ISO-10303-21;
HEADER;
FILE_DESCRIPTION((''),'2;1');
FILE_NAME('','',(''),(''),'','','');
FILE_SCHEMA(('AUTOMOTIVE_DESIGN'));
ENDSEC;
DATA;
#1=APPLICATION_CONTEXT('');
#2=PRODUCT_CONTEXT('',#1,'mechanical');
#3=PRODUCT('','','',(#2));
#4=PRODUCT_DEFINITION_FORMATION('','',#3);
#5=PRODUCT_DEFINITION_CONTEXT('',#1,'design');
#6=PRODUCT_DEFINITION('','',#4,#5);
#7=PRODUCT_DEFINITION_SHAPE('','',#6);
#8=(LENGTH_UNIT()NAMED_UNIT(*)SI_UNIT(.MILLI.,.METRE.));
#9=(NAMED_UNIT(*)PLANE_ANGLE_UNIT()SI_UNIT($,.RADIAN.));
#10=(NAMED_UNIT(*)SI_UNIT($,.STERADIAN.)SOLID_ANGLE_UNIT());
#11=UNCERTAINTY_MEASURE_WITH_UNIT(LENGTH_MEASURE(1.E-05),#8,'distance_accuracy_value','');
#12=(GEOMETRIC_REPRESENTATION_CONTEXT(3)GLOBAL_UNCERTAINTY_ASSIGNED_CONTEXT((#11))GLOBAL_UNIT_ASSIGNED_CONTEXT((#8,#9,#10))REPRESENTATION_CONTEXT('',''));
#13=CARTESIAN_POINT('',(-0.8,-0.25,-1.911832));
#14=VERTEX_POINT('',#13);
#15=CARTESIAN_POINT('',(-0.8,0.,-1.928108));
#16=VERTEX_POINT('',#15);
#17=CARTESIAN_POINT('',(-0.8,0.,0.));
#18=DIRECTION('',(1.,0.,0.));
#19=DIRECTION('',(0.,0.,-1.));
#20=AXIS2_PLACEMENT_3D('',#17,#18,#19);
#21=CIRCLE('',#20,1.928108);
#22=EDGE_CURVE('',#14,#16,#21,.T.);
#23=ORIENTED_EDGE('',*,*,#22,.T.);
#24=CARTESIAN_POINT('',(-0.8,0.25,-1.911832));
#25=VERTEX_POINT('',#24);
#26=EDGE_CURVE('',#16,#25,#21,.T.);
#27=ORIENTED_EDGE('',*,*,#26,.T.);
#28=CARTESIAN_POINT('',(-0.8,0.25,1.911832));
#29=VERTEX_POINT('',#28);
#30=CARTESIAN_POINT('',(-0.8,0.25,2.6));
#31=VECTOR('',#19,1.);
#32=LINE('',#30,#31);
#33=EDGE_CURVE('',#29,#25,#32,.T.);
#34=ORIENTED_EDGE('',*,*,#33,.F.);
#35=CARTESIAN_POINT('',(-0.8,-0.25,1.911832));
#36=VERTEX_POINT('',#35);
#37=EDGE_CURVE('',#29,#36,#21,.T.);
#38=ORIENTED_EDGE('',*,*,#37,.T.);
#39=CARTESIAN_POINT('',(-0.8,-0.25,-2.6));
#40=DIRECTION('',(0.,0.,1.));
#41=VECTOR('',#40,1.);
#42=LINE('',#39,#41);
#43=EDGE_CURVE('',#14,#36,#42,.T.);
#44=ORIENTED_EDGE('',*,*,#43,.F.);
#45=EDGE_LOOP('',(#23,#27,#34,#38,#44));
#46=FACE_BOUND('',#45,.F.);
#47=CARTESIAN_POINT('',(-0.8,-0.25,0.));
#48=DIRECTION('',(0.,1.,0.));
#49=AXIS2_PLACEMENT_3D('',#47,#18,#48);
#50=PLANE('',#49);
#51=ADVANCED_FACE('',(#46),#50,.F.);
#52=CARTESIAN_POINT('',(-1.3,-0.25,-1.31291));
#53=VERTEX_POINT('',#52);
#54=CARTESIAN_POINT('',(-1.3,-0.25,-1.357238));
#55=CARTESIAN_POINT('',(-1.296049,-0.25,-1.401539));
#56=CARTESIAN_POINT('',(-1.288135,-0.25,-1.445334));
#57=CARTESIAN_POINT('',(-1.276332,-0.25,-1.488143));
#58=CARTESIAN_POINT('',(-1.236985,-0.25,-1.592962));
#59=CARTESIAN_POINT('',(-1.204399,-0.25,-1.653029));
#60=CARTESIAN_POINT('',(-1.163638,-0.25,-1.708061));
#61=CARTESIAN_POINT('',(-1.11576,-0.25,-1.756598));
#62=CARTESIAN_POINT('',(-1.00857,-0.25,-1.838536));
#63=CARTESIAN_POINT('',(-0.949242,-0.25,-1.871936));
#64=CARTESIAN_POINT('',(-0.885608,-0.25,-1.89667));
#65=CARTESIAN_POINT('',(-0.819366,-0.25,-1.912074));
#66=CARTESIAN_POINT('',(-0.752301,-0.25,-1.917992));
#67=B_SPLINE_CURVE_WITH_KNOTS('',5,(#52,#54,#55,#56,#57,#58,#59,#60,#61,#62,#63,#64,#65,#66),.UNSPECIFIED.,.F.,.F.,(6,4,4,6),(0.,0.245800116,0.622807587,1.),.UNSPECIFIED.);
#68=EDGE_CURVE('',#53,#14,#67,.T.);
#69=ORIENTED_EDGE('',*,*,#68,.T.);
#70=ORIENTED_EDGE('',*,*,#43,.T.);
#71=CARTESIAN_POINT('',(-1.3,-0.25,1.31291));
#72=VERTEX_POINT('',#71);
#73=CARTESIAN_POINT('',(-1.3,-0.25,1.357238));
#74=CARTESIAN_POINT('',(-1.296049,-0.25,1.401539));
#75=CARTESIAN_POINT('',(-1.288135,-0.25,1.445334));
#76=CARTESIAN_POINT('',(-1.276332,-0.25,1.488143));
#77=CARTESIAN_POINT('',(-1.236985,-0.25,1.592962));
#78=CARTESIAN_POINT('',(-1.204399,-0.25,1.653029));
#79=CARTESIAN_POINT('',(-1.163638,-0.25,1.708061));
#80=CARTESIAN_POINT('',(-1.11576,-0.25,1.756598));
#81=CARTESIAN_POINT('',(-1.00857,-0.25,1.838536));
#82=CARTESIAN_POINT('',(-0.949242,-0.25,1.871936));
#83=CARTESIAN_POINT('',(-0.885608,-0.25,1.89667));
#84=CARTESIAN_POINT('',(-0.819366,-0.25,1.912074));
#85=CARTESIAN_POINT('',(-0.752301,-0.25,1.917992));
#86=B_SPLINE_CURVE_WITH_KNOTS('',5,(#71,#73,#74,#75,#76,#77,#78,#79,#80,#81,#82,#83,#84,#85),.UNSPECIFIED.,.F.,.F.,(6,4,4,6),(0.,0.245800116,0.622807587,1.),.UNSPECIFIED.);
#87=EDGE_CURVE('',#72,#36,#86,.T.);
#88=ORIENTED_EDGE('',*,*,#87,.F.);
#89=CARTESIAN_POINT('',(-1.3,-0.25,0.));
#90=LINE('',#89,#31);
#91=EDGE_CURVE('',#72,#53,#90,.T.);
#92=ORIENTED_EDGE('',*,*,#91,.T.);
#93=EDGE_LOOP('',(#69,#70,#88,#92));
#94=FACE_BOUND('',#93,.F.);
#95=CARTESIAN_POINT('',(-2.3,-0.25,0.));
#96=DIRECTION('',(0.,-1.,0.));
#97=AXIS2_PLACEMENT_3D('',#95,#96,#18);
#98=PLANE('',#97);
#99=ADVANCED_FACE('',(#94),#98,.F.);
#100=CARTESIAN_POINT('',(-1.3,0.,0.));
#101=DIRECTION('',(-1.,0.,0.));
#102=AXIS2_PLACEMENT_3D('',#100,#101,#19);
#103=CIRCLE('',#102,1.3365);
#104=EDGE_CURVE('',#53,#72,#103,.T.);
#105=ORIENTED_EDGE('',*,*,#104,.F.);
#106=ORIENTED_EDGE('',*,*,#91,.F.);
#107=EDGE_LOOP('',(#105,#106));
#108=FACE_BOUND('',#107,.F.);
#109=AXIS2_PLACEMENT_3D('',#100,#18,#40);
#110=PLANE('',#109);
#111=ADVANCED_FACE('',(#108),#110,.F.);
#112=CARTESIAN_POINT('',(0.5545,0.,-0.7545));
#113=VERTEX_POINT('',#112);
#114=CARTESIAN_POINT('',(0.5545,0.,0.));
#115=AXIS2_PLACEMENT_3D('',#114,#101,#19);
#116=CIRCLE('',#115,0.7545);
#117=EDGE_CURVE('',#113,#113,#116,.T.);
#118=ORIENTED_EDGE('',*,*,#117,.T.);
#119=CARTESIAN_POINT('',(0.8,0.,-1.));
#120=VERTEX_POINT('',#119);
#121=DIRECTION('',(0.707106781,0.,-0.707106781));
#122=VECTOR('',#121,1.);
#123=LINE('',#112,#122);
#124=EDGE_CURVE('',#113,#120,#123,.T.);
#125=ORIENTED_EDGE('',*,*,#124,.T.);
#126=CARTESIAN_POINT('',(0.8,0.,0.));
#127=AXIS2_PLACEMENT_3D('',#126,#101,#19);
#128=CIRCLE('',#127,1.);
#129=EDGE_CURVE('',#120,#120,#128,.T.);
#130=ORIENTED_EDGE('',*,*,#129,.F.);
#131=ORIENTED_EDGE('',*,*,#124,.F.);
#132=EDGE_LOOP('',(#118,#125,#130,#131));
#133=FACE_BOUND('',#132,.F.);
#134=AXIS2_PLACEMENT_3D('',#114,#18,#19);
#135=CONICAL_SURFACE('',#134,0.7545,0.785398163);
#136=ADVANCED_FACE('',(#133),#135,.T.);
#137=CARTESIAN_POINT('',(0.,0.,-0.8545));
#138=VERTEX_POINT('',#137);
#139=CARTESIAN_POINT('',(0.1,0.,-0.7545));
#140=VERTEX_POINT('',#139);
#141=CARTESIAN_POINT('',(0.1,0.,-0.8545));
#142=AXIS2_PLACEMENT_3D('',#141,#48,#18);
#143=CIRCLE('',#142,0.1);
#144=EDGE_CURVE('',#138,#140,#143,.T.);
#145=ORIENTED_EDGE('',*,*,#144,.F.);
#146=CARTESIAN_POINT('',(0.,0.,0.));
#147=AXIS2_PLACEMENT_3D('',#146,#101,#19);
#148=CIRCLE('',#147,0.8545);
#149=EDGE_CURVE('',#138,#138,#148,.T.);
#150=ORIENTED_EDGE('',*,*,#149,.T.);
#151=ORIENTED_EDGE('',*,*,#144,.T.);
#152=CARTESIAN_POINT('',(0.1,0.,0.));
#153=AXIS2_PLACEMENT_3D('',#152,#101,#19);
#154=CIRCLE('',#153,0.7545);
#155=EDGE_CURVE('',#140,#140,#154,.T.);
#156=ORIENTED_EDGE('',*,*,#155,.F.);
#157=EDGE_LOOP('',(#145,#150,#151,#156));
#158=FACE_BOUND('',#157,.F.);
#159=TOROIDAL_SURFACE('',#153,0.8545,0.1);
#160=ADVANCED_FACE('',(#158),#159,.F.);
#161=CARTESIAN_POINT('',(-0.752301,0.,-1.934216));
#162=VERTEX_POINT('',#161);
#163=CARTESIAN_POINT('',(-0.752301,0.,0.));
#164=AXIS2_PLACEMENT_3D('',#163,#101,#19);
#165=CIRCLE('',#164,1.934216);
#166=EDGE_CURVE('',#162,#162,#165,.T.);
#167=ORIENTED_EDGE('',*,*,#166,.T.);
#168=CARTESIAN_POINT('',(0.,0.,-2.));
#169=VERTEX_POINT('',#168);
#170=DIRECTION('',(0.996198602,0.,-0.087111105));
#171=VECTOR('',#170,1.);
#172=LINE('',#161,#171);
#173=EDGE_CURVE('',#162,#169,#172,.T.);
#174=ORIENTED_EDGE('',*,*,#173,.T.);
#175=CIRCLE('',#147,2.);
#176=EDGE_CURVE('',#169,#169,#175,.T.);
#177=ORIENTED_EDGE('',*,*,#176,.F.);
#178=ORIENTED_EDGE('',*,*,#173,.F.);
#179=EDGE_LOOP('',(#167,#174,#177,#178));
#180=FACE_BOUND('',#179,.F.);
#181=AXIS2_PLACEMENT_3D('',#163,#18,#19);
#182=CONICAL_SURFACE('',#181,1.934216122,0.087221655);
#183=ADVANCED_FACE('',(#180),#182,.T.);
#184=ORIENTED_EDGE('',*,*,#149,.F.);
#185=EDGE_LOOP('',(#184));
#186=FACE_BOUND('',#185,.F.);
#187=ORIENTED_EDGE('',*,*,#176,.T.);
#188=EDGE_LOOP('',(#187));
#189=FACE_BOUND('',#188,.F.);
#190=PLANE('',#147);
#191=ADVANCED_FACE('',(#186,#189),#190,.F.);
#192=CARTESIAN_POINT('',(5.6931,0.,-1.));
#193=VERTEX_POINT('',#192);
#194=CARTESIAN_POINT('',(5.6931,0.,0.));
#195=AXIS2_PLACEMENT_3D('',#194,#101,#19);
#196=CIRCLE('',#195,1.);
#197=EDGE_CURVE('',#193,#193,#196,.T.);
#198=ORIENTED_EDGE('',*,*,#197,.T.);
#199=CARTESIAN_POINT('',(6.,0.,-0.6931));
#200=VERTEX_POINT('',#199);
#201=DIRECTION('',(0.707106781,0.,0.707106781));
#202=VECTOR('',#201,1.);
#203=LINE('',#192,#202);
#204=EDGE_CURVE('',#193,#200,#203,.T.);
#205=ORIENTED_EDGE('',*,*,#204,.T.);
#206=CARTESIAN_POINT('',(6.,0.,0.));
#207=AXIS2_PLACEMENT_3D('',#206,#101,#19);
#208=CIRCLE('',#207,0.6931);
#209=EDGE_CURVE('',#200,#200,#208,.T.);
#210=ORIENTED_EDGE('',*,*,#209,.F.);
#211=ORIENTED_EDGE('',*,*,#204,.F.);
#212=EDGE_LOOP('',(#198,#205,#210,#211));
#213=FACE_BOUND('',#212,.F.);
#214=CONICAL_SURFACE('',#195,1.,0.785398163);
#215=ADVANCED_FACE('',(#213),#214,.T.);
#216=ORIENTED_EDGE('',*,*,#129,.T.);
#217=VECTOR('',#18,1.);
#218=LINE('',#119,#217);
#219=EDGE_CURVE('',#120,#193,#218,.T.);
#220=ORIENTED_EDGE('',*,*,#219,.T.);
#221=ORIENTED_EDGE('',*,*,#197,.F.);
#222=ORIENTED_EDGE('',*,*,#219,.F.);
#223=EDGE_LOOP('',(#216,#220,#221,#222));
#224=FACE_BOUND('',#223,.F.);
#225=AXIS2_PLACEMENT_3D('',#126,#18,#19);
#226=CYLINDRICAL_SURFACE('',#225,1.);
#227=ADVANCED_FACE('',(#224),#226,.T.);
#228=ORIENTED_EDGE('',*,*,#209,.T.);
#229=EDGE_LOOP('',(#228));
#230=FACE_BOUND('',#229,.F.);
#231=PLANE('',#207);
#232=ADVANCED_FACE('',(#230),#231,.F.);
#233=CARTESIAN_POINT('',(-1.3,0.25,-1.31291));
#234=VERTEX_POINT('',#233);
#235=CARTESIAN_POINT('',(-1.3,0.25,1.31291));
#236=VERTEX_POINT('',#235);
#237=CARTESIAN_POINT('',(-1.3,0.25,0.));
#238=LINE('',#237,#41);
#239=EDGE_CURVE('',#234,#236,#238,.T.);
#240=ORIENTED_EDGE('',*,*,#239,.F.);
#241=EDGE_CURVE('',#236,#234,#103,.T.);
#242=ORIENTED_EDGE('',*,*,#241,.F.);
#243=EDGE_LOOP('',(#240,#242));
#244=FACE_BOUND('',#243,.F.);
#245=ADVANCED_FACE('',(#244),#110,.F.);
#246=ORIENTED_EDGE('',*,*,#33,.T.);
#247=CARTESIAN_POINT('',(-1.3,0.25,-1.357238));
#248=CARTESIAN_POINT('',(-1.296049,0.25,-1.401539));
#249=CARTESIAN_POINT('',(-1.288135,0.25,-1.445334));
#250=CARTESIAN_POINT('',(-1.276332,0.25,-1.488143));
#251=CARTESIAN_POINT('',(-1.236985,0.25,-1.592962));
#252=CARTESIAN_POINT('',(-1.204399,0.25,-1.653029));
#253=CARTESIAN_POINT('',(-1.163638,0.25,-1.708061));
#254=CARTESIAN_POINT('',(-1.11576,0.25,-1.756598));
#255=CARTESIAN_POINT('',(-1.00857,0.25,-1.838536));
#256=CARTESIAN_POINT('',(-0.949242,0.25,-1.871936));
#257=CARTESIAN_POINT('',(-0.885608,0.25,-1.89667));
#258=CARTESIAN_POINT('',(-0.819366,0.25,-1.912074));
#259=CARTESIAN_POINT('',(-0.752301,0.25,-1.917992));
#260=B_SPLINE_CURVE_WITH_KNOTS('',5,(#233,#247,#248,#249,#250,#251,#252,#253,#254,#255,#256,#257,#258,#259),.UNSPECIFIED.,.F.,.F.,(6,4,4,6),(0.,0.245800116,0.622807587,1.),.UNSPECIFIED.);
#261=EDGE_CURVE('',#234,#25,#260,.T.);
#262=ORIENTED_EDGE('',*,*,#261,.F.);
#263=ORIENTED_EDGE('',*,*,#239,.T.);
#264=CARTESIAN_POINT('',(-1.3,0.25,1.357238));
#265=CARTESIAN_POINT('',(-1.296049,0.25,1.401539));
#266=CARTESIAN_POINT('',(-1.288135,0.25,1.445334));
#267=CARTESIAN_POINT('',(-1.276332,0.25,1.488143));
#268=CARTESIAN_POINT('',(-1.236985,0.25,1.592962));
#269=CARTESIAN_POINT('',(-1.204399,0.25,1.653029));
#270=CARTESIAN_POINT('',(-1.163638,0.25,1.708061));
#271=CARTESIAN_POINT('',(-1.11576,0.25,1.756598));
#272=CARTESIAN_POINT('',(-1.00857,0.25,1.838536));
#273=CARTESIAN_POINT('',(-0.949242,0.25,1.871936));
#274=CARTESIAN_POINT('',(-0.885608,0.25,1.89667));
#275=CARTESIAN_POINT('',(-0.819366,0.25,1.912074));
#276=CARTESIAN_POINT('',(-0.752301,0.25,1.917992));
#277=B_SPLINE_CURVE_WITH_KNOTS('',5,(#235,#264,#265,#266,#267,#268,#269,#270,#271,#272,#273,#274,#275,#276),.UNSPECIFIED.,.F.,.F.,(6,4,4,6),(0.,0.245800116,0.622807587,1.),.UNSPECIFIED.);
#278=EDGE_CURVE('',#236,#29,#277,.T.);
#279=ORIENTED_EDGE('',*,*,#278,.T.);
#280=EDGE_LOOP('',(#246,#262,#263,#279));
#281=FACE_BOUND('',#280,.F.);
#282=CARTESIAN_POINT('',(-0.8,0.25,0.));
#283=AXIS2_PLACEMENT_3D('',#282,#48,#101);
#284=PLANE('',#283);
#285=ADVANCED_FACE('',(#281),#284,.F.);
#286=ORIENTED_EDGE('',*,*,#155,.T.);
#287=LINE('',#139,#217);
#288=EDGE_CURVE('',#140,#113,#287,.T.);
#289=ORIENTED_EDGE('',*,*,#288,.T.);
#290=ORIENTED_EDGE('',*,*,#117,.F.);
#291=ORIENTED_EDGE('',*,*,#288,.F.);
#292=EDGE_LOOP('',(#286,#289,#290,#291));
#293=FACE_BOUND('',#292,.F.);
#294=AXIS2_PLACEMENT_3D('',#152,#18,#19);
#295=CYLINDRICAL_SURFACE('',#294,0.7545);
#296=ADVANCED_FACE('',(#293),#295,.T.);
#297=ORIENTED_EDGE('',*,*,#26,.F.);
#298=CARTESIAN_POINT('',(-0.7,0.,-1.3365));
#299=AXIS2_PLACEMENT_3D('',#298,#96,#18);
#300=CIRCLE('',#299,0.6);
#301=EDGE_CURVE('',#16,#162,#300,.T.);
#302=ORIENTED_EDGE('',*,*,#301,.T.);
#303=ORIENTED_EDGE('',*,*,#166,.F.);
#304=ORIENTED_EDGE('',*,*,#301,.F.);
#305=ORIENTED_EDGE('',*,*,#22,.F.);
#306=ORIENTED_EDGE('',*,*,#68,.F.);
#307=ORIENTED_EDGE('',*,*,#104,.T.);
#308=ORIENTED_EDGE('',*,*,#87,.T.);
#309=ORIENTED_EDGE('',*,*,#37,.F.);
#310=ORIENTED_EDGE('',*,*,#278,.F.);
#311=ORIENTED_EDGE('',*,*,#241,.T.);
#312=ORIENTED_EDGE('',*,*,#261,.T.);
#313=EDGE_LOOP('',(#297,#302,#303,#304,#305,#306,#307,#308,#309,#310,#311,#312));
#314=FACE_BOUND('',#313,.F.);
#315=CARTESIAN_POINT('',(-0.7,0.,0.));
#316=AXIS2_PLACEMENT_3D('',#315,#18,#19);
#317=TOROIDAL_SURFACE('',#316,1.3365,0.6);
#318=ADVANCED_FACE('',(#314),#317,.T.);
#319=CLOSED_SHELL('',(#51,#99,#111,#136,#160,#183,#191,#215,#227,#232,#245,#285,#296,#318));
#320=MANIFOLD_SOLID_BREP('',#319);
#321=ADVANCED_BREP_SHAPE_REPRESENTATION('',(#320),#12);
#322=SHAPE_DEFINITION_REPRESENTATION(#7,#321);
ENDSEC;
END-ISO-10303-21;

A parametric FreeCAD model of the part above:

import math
import FreeCAD as App
import Part
import Sketcher
from FreeCAD import Vector
Q = App.Units.Quantity

doc = App.newDocument("Part")
body = doc.addObject("PartDesign::Body", "Body")

# Sketch on XZ plane
sketch1 = doc.addObject("Sketcher::SketchObject", "Sketch")
body.addObject(sketch1)
sketch1.AttachmentSupport = (doc.XZ_Plane, [""])
sketch1.MapMode = "FlatFace"
sketch1.addGeometry(Part.LineSegment(Vector(6, 0, 0), Vector(-1.3, 0, 0)), False)
sketch1.addGeometry(Part.LineSegment(Vector(-1.3, 0, 0), Vector(-1.3, -1.3365, 0)), False)
sketch1.addGeometry(Part.ArcOfCircle(Part.Circle(Vector(-0.7, -1.3365, 0), Vector(0, 0, 1), 0.6), math.radians(180), math.radians(264.999236)), False)
sketch1.addGeometry(Part.LineSegment(Vector(-0.7523, -1.9342, 0), Vector(0, -2, 0)), False)
sketch1.addGeometry(Part.LineSegment(Vector(0, -2, 0), Vector(0, -0.8545, 0)), False)
sketch1.addGeometry(Part.ArcOfCircle(Part.Circle(Vector(0.1, -0.8545, 0), Vector(0, 0, 1), 0.1), math.radians(90), math.radians(180)), False)
sketch1.addGeometry(Part.LineSegment(Vector(0.1, -0.7545, 0), Vector(0.5545, -0.7545, 0)), False)
sketch1.addGeometry(Part.LineSegment(Vector(0.5545, -0.7545, 0), Vector(0.8, -1, 0)), False)
sketch1.addGeometry(Part.LineSegment(Vector(0.8, -1, 0), Vector(5.6931, -1, 0)), False)
sketch1.addGeometry(Part.LineSegment(Vector(5.6931, -1, 0), Vector(6, -0.6931, 0)), False)
sketch1.addGeometry(Part.LineSegment(Vector(6, -0.6931, 0), Vector(6, 0, 0)), False)
sketch1.addConstraint(Sketcher.Constraint("Coincident", 0, 2, 1, 1))
sketch1.addConstraint(Sketcher.Constraint("Tangent", 1, 2, 2, 1))
sketch1.addConstraint(Sketcher.Constraint("Tangent", 2, 2, 3, 1))
sketch1.addConstraint(Sketcher.Constraint("Coincident", 3, 2, 4, 1))
sketch1.addConstraint(Sketcher.Constraint("Tangent", 4, 2, 5, 2))
sketch1.addConstraint(Sketcher.Constraint("Tangent", 5, 1, 6, 1))
sketch1.addConstraint(Sketcher.Constraint("Coincident", 6, 2, 7, 1))
sketch1.addConstraint(Sketcher.Constraint("Coincident", 7, 2, 8, 1))
sketch1.addConstraint(Sketcher.Constraint("Coincident", 8, 2, 9, 1))
sketch1.addConstraint(Sketcher.Constraint("Coincident", 9, 2, 10, 1))
sketch1.addConstraint(Sketcher.Constraint("Coincident", 10, 2, 0, 1))
sketch1.addConstraint(Sketcher.Constraint("Horizontal", 0))
sketch1.addConstraint(Sketcher.Constraint("Vertical", 1))
sketch1.addConstraint(Sketcher.Constraint("Vertical", 4))
sketch1.addConstraint(Sketcher.Constraint("Horizontal", 6))
sketch1.addConstraint(Sketcher.Constraint("Horizontal", 8))
sketch1.addConstraint(Sketcher.Constraint("Vertical", 10))
sketch1.addConstraint(Sketcher.Constraint("PointOnObject", 0, 2, -1))
sketch1.addConstraint(Sketcher.Constraint("PointOnObject", 3, 2, -2))
sketch1.addConstraint(Sketcher.Constraint("Perpendicular", 7, 9))
sketch1.addConstraint(Sketcher.Constraint("Radius", 2, 0.6))
sketch1.addConstraint(Sketcher.Constraint("Radius", 5, 0.1))
sketch1.addConstraint(Sketcher.Constraint("Angle", 7, Q("-45 deg")))
sketch1.addConstraint(Sketcher.Constraint("DistanceX", 0, 2, 0, 1, 7.3))
sketch1.addConstraint(Sketcher.Constraint("DistanceY", 3, 2, -1, 1, 2.0))
sketch1.addConstraint(Sketcher.Constraint("DistanceY", 7, 2, -1, 1, 1.0))
sketch1.addConstraint(Sketcher.Constraint("DistanceX", -1, 1, 9, 2, 6.0))
sketch1.addConstraint(Sketcher.Constraint("DistanceX", -1, 1, 7, 2, 0.8))
sketch1.addConstraint(Sketcher.Constraint("DistanceX", 8, 1, 8, 2, 4.893))
sketch1.addConstraint(Sketcher.Constraint("DistanceX", 6, 1, 6, 2, 0.4545))
sketch1.addConstraint(Sketcher.Constraint("DistanceY", 1, 2, 1, 1, 1.3365))
revolution = doc.addObject("PartDesign::Revolution", "Revolution")
body.addObject(revolution)
revolution.Profile = sketch1
revolution.ReferenceAxis = (sketch1, ["H_Axis"])
revolution.Angle = 360

# Sketch on XY plane
sketch2 = doc.addObject("Sketcher::SketchObject", "Sketch001")
body.addObject(sketch2)
sketch2.AttachmentSupport = (doc.XY_Plane, [""])
sketch2.MapMode = "FlatFace"
sketch2.addGeometry(Part.LineSegment(Vector(-0.8, 0.25, 0), Vector(-2.3, 0.25, 0)), False)
sketch2.addGeometry(Part.LineSegment(Vector(-2.3, 0.25, 0), Vector(-2.3, -0.25, 0)), False)
sketch2.addGeometry(Part.LineSegment(Vector(-2.3, -0.25, 0), Vector(-0.8, -0.25, 0)), False)
sketch2.addGeometry(Part.LineSegment(Vector(-0.8, -0.25, 0), Vector(-0.8, 0.25, 0)), False)
sketch2.addConstraint(Sketcher.Constraint("Coincident", 0, 2, 1, 1))
sketch2.addConstraint(Sketcher.Constraint("Coincident", 1, 2, 2, 1))
sketch2.addConstraint(Sketcher.Constraint("Coincident", 2, 2, 3, 1))
sketch2.addConstraint(Sketcher.Constraint("Coincident", 3, 2, 0, 1))
sketch2.addConstraint(Sketcher.Constraint("Horizontal", 0))
sketch2.addConstraint(Sketcher.Constraint("Vertical", 1))
sketch2.addConstraint(Sketcher.Constraint("Horizontal", 2))
sketch2.addConstraint(Sketcher.Constraint("Vertical", 3))
sketch2.addConstraint(Sketcher.Constraint("DistanceX", 0, 2, 0, 1, 1.5))
sketch2.addConstraint(Sketcher.Constraint("DistanceY", 1, 2, 1, 1, 0.5))
sketch2.addConstraint(Sketcher.Constraint("DistanceX", 0, 2, -1, 1, 2.3))
sketch2.addConstraint(Sketcher.Constraint("DistanceY", -1, 1, 0, 2, 0.25))
pocket1 = doc.addObject("PartDesign::Pocket", "Pocket")
body.addObject(pocket1)
pocket1.Profile = sketch2
pocket1.Type = "ThroughAll"
pocket1.Midplane = True

doc.recompute()
